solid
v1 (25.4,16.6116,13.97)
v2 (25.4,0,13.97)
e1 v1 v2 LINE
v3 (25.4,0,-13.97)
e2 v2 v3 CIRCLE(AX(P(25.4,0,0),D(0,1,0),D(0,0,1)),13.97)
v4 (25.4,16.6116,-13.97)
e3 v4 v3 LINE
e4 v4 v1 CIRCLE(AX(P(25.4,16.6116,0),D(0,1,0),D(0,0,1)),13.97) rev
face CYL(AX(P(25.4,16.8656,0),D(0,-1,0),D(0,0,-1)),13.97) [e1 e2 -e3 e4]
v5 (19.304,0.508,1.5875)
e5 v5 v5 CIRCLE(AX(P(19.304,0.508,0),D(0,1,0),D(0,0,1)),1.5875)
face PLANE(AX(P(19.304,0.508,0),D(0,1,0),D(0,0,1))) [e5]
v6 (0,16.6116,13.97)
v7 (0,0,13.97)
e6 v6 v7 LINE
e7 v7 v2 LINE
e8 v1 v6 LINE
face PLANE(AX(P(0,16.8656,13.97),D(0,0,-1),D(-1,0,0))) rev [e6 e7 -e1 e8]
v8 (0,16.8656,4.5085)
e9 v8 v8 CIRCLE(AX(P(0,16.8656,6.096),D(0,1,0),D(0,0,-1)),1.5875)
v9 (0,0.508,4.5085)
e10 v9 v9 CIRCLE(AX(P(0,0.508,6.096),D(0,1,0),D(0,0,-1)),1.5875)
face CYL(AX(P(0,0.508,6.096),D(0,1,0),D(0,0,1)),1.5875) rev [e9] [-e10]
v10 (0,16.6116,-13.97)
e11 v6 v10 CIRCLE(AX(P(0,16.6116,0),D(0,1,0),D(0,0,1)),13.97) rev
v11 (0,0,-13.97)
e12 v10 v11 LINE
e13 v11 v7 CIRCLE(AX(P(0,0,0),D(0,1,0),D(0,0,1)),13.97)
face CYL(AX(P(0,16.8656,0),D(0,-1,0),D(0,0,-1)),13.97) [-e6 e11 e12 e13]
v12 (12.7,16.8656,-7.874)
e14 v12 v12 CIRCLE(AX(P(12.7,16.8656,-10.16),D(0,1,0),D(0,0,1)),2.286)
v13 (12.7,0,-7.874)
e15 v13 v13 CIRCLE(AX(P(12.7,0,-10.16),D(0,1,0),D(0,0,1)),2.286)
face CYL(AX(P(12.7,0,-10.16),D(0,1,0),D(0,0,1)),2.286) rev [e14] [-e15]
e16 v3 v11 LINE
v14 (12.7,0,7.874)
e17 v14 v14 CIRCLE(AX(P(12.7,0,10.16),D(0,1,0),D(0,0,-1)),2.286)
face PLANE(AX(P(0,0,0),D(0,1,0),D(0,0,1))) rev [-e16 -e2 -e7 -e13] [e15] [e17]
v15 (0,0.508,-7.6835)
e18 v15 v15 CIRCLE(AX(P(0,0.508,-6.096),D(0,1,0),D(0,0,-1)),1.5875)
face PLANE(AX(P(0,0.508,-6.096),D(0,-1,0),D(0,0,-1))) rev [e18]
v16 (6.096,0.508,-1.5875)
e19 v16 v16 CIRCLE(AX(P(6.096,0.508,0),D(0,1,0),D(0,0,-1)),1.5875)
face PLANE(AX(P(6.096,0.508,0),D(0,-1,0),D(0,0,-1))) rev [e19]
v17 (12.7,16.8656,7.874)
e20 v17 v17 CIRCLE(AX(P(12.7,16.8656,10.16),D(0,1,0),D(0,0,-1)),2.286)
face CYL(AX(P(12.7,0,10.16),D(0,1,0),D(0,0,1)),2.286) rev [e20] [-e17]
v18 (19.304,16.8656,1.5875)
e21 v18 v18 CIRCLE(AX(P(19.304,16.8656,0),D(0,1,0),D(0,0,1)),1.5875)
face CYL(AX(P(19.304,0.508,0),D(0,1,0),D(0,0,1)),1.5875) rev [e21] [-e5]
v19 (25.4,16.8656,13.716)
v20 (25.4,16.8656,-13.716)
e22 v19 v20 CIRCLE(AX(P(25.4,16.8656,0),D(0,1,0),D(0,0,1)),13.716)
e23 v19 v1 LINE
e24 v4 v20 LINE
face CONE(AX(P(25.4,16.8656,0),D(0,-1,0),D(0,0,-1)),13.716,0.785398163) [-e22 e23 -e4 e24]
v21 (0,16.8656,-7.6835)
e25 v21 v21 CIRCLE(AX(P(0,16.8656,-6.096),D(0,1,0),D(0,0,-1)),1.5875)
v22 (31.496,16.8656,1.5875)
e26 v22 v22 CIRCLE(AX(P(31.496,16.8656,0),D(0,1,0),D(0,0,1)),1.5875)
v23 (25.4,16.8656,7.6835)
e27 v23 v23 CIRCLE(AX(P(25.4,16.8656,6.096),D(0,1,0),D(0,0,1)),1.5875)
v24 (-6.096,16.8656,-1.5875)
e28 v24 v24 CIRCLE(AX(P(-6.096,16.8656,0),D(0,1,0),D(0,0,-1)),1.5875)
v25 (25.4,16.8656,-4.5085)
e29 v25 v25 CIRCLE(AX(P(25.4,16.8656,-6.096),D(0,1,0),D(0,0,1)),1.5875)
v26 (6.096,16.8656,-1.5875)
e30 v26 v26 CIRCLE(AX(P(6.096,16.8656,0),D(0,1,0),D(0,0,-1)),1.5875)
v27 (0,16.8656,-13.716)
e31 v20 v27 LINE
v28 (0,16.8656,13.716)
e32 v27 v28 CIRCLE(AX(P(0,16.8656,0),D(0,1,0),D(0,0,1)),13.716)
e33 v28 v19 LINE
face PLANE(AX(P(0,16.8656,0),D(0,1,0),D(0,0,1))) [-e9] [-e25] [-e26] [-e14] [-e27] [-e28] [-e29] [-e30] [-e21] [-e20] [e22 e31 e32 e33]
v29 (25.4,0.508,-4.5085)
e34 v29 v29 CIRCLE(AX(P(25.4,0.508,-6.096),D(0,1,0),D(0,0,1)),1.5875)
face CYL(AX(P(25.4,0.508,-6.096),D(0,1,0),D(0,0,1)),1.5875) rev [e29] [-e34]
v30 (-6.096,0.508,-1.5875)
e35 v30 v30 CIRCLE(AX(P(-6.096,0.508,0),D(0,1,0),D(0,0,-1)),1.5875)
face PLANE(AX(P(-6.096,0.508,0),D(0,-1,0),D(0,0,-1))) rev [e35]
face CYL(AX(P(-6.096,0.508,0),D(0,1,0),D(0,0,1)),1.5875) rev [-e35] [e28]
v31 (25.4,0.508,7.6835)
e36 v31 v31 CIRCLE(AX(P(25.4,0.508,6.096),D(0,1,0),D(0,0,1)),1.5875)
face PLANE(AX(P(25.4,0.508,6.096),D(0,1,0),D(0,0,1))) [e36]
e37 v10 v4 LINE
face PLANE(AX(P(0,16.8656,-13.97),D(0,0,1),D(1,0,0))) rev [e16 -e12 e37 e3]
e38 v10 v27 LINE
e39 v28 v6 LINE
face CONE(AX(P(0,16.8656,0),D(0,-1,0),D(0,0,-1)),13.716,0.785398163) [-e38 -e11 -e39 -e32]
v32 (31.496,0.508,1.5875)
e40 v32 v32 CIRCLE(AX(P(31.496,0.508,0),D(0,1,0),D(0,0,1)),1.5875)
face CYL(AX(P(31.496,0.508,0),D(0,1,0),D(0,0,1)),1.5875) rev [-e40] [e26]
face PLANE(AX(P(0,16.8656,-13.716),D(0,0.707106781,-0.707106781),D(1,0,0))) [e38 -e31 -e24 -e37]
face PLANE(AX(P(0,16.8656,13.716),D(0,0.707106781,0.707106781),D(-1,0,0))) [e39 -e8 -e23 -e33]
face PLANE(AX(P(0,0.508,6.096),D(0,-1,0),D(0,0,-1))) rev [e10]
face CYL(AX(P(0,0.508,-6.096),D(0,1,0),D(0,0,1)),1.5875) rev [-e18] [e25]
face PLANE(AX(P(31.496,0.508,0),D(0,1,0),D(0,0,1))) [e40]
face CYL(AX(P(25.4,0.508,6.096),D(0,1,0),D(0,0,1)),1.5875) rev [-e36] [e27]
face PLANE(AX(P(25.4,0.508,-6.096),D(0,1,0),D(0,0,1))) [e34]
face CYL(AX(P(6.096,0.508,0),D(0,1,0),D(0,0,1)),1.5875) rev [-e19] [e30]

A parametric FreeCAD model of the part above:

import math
import FreeCAD as App
import Part
import Sketcher

V = App.Vector
Q = App.Units.Quantity


def edges_at(feature, points):
    """Names of the edges that pass closest to the given points."""
    edges = feature.Shape.Edges
    near = lambda p: min(range(len(edges)), key=lambda i: edges[i].distToShape(Part.Vertex(*p))[0])
    return sorted({f"Edge{near(p) + 1}" for p in points})

doc = App.newDocument("Part")
body = doc.addObject("PartDesign::Body", "Body")

sketch1 = body.newObject("Sketcher::SketchObject", "Sketch")
sketch1.AttachmentSupport = (doc.getObject("XZ_Plane"), [""])
sketch1.MapMode = "FlatFace"
sketch1.addGeometry(Part.LineSegment(V(25, -14, 0), V(0, -14, 0)), False)
sketch1.addGeometry(Part.ArcOfCircle(Part.Circle(V(0, 0, 0), V(0, 0, 1), 14), math.radians(90), math.radians(270)), False)
sketch1.addGeometry(Part.LineSegment(V(0, 14, 0), V(25, 14, 0)), False)
sketch1.addGeometry(Part.ArcOfCircle(Part.Circle(V(25, 0, 0), V(0, 0, 1), 14), math.radians(-90), math.radians(90)), False)
sketch1.addConstraint(Sketcher.Constraint("Tangent", 0, 2, 1, 2))
sketch1.addConstraint(Sketcher.Constraint("Tangent", 1, 1, 2, 1))
sketch1.addConstraint(Sketcher.Constraint("Tangent", 2, 2, 3, 2))
sketch1.addConstraint(Sketcher.Constraint("Tangent", 3, 1, 0, 1))
sketch1.addConstraint(Sketcher.Constraint("Horizontal", 0))
sketch1.addConstraint(Sketcher.Constraint("Horizontal", 2))
sketch1.addConstraint(Sketcher.Constraint("Coincident", 1, 3, -1, 1))
sketch1.addConstraint(Sketcher.Constraint("DistanceX", 0, 2, 0, 1, Q("1 in")))
sketch1.addConstraint(Sketcher.Constraint("Radius", 1, Q("0.55 in")))
pad1 = body.newObject("PartDesign::Pad", "Pad")
pad1.Profile = sketch1
pad1.Length = Q("0.664 in")
pad1.Reversed = True
doc.recompute()

chamfer = body.newObject("PartDesign::Chamfer", "Chamfer")
chamfer.Base = (pad1, edges_at(pad1, [
    (39.37, 16.866, 0),
    (12.7, 16.866, -13.97),
    (-13.97, 16.866, 0),
    (12.7, 16.866, 13.97),
]))
chamfer.Size = Q("0.01 in")

sketch2 = body.newObject("Sketcher::SketchObject", "Sketch001")
sketch2.AttachmentSupport = (doc.getObject("XZ_Plane"), [""])
sketch2.MapMode = "FlatFace"
sketch2.AttachmentOffset = App.Placement(V(0, 0, -0.664 * 25.4), App.Rotation())
sketch2.addGeometry(Part.Circle(V(25.4, -6.1, 0), V(0, 0, 1), 1.6), False)
sketch2.addGeometry(Part.Circle(V(31.5, 0, 0), V(0, 0, 1), 1.6), False)
sketch2.addGeometry(Part.Circle(V(25.4, 6.1, 0), V(0, 0, 1), 1.6), False)
sketch2.addGeometry(Part.Circle(V(19.3, 0, 0), V(0, 0, 1), 1.6), False)
sketch2.addGeometry(Part.Circle(V(-6.1, 0, 0), V(0, 0, 1), 1.6), False)
sketch2.addGeometry(Part.Circle(V(6.1, 0, 0), V(0, 0, 1), 1.6), False)
sketch2.addGeometry(Part.Circle(V(0, 6.1, 0), V(0, 0, 1), 1.6), False)
sketch2.addGeometry(Part.Circle(V(0, -6.1, 0), V(0, 0, 1), 1.6), False)
sketch2.addConstraint(Sketcher.Constraint("Equal", 0, 1))
sketch2.addConstraint(Sketcher.Constraint("Equal", 1, 2))
sketch2.addConstraint(Sketcher.Constraint("Equal", 2, 3))
sketch2.addConstraint(Sketcher.Constraint("Equal", 3, 4))
sketch2.addConstraint(Sketcher.Constraint("Equal", 4, 5))
sketch2.addConstraint(Sketcher.Constraint("Equal", 5, 6))
sketch2.addConstraint(Sketcher.Constraint("Equal", 6, 7))
sketch2.addConstraint(Sketcher.Constraint("Symmetric", 4, 3, 5, 3, -1, 1))
sketch2.addConstraint(Sketcher.Constraint("Symmetric", 6, 3, 7, 3, -1, 1))
sketch2.addConstraint(Sketcher.Constraint("Symmetric", 0, 3, 2, 3, -1))
sketch2.addConstraint(Sketcher.Constraint("PointOnObject", 1, 3, -1))
sketch2.addConstraint(Sketcher.Constraint("PointOnObject", 3, 3, -1))
sketch2.addConstraint(Sketcher.Constraint("PointOnObject", 4, 3, -1))
sketch2.addConstraint(Sketcher.Constraint("PointOnObject", 6, 3, -2))
sketch2.addConstraint(Sketcher.Constraint("Horizontal", 2, 3, 6, 3))
sketch2.addConstraint(Sketcher.Constraint("Diameter", 0, Q("0.125 in")))
sketch2.addConstraint(Sketcher.Constraint("DistanceX", -1, 1, 0, 3, Q("1 in")))
sketch2.addConstraint(Sketcher.Constraint("DistanceX", 4, 3, 3, 3, Q("1 in")))
sketch2.addConstraint(Sketcher.Constraint("DistanceX", 5, 3, 1, 3, Q("1 in")))
sketch2.addConstraint(Sketcher.Constraint("DistanceY", 0, 3, -1, 1, Q("0.24 in")))
sketch2.addConstraint(Sketcher.Constraint("DistanceX", -1, 1, 1, 3, Q("1.24 in")))
pocket1 = body.newObject("PartDesign::Pocket", "Pocket")
pocket1.Profile = sketch2
pocket1.Length = Q("0.644 in")
pocket1.Reversed = True

sketch3 = body.newObject("Sketcher::SketchObject", "Sketch002")
sketch3.AttachmentSupport = (doc.getObject("XZ_Plane"), [""])
sketch3.MapMode = "FlatFace"
sketch3.AttachmentOffset = App.Placement(V(0, 0, -0.664 * 25.4), App.Rotation())
sketch3.addGeometry(Part.Circle(V(12.7, -10.2, 0), V(0, 0, 1), 2.3), False)
sketch3.addGeometry(Part.Circle(V(12.7, 10.2, 0), V(0, 0, 1), 2.3), False)
sketch3.addConstraint(Sketcher.Constraint("Equal", 0, 1))
sketch3.addConstraint(Sketcher.Constraint("Symmetric", 0, 3, 1, 3, -1))
sketch3.addConstraint(Sketcher.Constraint("Diameter", 0, Q("0.18 in")))
sketch3.addConstraint(Sketcher.Constraint("DistanceX", -1, 1, 0, 3, Q("0.5 in")))
sketch3.addConstraint(Sketcher.Constraint("DistanceY", 0, 3, -1, 1, Q("0.4 in")))
pocket2 = body.newObject("PartDesign::Pocket", "Pocket001")
pocket2.Profile = sketch3
pocket2.Type = "ThroughAll"
pocket2.Reversed = True

doc.recompute()
